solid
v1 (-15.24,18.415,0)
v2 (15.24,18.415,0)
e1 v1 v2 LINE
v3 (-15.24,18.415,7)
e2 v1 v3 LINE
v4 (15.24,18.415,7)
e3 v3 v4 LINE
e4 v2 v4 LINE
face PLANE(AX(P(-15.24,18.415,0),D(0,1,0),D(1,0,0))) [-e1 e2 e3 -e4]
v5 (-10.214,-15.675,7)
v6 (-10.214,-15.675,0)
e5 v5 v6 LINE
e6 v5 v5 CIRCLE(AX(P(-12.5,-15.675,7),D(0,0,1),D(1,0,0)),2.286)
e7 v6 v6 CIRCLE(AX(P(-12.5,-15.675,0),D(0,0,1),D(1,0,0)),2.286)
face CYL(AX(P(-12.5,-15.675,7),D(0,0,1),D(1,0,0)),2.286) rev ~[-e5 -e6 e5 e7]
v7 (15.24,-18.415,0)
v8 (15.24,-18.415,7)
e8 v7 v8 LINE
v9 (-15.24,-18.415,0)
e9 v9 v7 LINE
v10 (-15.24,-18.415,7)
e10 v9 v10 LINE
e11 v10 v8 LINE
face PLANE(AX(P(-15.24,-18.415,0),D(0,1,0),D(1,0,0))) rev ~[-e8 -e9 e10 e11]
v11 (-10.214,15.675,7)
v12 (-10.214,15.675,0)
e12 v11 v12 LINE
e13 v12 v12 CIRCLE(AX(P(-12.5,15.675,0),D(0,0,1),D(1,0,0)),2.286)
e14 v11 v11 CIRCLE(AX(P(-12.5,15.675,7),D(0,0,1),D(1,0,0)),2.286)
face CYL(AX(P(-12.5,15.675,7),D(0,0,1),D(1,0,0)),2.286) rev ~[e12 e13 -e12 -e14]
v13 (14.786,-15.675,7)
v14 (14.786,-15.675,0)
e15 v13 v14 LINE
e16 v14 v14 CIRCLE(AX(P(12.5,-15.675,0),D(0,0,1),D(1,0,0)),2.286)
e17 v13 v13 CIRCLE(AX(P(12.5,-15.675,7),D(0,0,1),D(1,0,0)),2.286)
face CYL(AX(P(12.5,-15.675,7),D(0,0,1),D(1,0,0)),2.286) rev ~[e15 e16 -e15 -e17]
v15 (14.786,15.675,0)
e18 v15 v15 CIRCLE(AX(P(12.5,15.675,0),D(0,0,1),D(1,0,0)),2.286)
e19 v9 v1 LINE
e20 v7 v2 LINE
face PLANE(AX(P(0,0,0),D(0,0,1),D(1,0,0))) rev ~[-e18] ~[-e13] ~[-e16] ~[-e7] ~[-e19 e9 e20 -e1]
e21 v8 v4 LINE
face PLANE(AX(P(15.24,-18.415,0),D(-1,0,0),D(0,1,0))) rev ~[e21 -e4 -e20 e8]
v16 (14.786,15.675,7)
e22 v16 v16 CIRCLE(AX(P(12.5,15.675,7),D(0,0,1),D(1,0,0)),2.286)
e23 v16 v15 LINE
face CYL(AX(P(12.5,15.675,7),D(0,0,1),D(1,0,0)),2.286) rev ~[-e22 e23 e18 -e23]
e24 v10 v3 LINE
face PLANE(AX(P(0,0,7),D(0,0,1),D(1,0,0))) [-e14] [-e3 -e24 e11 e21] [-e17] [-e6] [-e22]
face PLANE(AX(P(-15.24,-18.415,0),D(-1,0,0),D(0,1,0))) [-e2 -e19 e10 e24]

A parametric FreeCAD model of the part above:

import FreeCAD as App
import Part
import Sketcher
from FreeCAD import Vector
Q = App.Units.Quantity


def add_polygon(sketch, points):
    """Adds a closed chain of lines whose ends are joined by coincident constraints."""
    first, n = sketch.GeometryCount, len(points)
    for a, b in zip(points, points[1:] + points[:1]):
        sketch.addGeometry(Part.LineSegment(App.Vector(*a, 0), App.Vector(*b, 0)), False)
    for i in range(n):
        sketch.addConstraint(Sketcher.Constraint("Coincident", first + i, 2, first + (i + 1) % n, 1))

doc = App.newDocument("Part")
body = doc.addObject("PartDesign::Body", "Body")

# Sketch on XY plane
sketch1 = body.newObject("Sketcher::SketchObject", "Sketch")
sketch1.AttachmentSupport = (doc.getObject("XY_Plane"), [""])
sketch1.MapMode = "FlatFace"
add_polygon(sketch1, [(-15, 18), (-15, -18), (15, -18), (15, 18)])  # lines 0-3
sketch1.addConstraint([
    Sketcher.Constraint("Vertical", 0),
    Sketcher.Constraint("Horizontal", 1),
    Sketcher.Constraint("Vertical", 2),
    Sketcher.Constraint("Horizontal", 3),
    Sketcher.Constraint("Symmetric", 0, 2, 2, 2, -1, 1),
    Sketcher.Constraint("DistanceX", 1, 1, 1, 2, Q("1.2 in")),
    Sketcher.Constraint("DistanceY", 0, 2, 0, 1, Q("1.45 in")),
])
pad1 = body.newObject("PartDesign::Pad", "Pad")
pad1.Profile = sketch1
pad1.Length = 7

# Sketch on XY plane
sketch2 = body.newObject("Sketcher::SketchObject", "Sketch001")
sketch2.AttachmentSupport = (doc.getObject("XY_Plane"), [""])
sketch2.MapMode = "FlatFace"
sketch2.AttachmentOffset = App.Placement(Vector(0, 0, 7), App.Rotation())
sketch2.addGeometry([
    Part.Circle(Vector(-12.5, 15.7, 0), Vector(0, 0, 1), 2.3),
    Part.Circle(Vector(12.5, 15.7, 0), Vector(0, 0, 1), 2.3),
    Part.Circle(Vector(12.5, -15.7, 0), Vector(0, 0, 1), 2.3),
    Part.Circle(Vector(-12.5, -15.7, 0), Vector(0, 0, 1), 2.3),
], False)
sketch2.addConstraint([
    Sketcher.Constraint("Equal", 0, 1),
    Sketcher.Constraint("Equal", 1, 2),
    Sketcher.Constraint("Equal", 2, 3),
    Sketcher.Constraint("Symmetric", 0, 3, 2, 3, -1, 1),
    Sketcher.Constraint("Symmetric", 1, 3, 3, 3, -1, 1),
    Sketcher.Constraint("Symmetric", 0, 3, 1, 3, -2),
    Sketcher.Constraint("Diameter", 0, Q("0.18 in")),
    Sketcher.Constraint("DistanceX", 0, 3, -1, 1, 12.5),
    Sketcher.Constraint("DistanceY", -1, 1, 0, 3, 15.675),
])
pocket1 = body.newObject("PartDesign::Pocket", "Pocket")
pocket1.Profile = sketch2
pocket1.Length = 7

doc.recompute()
